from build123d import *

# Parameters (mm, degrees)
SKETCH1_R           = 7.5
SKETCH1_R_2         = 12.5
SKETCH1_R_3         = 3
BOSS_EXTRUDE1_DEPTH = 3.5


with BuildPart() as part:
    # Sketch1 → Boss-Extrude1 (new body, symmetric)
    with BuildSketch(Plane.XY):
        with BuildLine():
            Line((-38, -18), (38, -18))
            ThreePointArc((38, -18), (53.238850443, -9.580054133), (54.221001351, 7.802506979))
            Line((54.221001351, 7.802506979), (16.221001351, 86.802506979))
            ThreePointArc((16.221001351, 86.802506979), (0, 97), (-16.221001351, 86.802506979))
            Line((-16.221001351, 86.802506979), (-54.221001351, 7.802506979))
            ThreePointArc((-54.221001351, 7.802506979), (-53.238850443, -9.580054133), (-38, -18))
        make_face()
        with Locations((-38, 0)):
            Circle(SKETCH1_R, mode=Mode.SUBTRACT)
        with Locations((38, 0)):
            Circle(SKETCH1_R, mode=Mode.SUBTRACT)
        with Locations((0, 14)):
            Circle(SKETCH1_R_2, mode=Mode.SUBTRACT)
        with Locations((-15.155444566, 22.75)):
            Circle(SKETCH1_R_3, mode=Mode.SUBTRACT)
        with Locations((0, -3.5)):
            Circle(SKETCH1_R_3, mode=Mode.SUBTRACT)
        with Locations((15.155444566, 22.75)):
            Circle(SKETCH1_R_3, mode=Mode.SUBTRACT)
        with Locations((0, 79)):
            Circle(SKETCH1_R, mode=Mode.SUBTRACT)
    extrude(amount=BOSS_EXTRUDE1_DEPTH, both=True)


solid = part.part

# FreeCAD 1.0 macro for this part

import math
import FreeCAD as App
import Part
import Sketcher
Q = App.Units.Quantity

doc = App.newDocument("Part")
body = doc.addObject("PartDesign::Body", "Body")

# Sketch on XY plane
sketch1 = body.newObject("Sketcher::SketchObject", "Sketch")
sketch1.AttachmentSupport = (doc.getObject("XY_Plane"), [""])
sketch1.MapMode = "FlatFace"
sketch1.addGeometry(Part.LineSegment(App.Vector(-38, -18, 0), App.Vector(38, -18, 0)), False)
sketch1.addGeometry(Part.ArcOfCircle(Part.Circle(App.Vector(38, 0, 0), App.Vector(0, 0, 1), 18), math.radians(-90), math.radians(26)), False)
sketch1.addGeometry(Part.LineSegment(App.Vector(54.2, 7.8, 0), App.Vector(16.2, 86.8, 0)), False)
sketch1.addGeometry(Part.ArcOfCircle(Part.Circle(App.Vector(0, 79, 0), App.Vector(0, 0, 1), 18), math.radians(26), math.radians(154)), False)
sketch1.addGeometry(Part.LineSegment(App.Vector(-16.2, 86.8, 0), App.Vector(-54.2, 7.8, 0)), False)
sketch1.addGeometry(Part.ArcOfCircle(Part.Circle(App.Vector(-38, 0, 0), App.Vector(0, 0, 1), 18), math.radians(154), math.radians(270)), False)
sketch1.addGeometry(Part.Circle(App.Vector(-38, 0, 0), App.Vector(0, 0, 1), 7.5), False)
sketch1.addGeometry(Part.Circle(App.Vector(-15.2, 22.8, 0), App.Vector(0, 0, 1), 3), False)
sketch1.addGeometry(Part.Circle(App.Vector(0, -3.5, 0), App.Vector(0, 0, 1), 3), False)
sketch1.addGeometry(Part.Circle(App.Vector(0, 14, 0), App.Vector(0, 0, 1), 12.5), False)
sketch1.addGeometry(Part.Circle(App.Vector(38, 0, 0), App.Vector(0, 0, 1), 7.5), False)
sketch1.addGeometry(Part.Circle(App.Vector(15.2, 22.8, 0), App.Vector(0, 0, 1), 3), False)
sketch1.addGeometry(Part.Circle(App.Vector(0, 79, 0), App.Vector(0, 0, 1), 7.5), False)
sketch1.addConstraint(Sketcher.Constraint("Tangent", 0, 2, 1, 1))
sketch1.addConstraint(Sketcher.Constraint("Tangent", 1, 2, 2, 1))
sketch1.addConstraint(Sketcher.Constraint("Tangent", 2, 2, 3, 1))
sketch1.addConstraint(Sketcher.Constraint("Tangent", 3, 2, 4, 1))
sketch1.addConstraint(Sketcher.Constraint("Tangent", 4, 2, 5, 1))
sketch1.addConstraint(Sketcher.Constraint("Tangent", 5, 2, 0, 1))
sketch1.addConstraint(Sketcher.Constraint("Horizontal", 0))
sketch1.addConstraint(Sketcher.Constraint("Coincident", 6, 3, 5, 3))
sketch1.addConstraint(Sketcher.Constraint("Coincident", 10, 3, 1, 3))
sketch1.addConstraint(Sketcher.Constraint("Coincident", 12, 3, 3, 3))
sketch1.addConstraint(Sketcher.Constraint("Equal", 1, 3))
sketch1.addConstraint(Sketcher.Constraint("Equal", 3, 5))
sketch1.addConstraint(Sketcher.Constraint("Equal", 7, 8))
sketch1.addConstraint(Sketcher.Constraint("Equal", 6, 10))
sketch1.addConstraint(Sketcher.Constraint("Equal", 8, 11))
sketch1.addConstraint(Sketcher.Constraint("Equal", 10, 12))
sketch1.addConstraint(Sketcher.Constraint("Symmetric", 1, 3, 5, 3, -1, 1))
sketch1.addConstraint(Sketcher.Constraint("Symmetric", 7, 3, 11, 3, -2))
sketch1.addConstraint(Sketcher.Constraint("PointOnObject", 3, 3, -2))
sketch1.addConstraint(Sketcher.Constraint("PointOnObject", 8, 3, -2))
sketch1.addConstraint(Sketcher.Constraint("PointOnObject", 9, 3, -2))
sketch1.addConstraint(Sketcher.Constraint("Diameter", 6, Q("15 mm")))
sketch1.addConstraint(Sketcher.Constraint("Diameter", 7, Q("6 mm")))
sketch1.addConstraint(Sketcher.Constraint("Diameter", 9, Q("25 mm")))
sketch1.addConstraint(Sketcher.Constraint("Radius", 1, Q("18 mm")))
sketch1.addConstraint(Sketcher.Constraint("DistanceX", 0, 1, 0, 2, Q("76 mm")))
sketch1.addConstraint(Sketcher.Constraint("DistanceY", -1, 1, 3, 3, Q("79 mm")))
sketch1.addConstraint(Sketcher.Constraint("DistanceY", -1, 1, 9, 3, Q("14 mm")))
sketch1.addConstraint(Sketcher.Constraint("DistanceY", 8, 3, -1, 1, Q("3.5 mm")))
sketch1.addConstraint(Sketcher.Constraint("DistanceY", -1, 1, 7, 3, Q("22.75 mm")))
sketch1.addConstraint(Sketcher.Constraint("DistanceX", 7, 3, 11, 3, Q("30.310889 mm")))
pad1 = body.newObject("PartDesign::Pad", "Pad")
pad1.Profile = sketch1
pad1.Length = 7
pad1.Midplane = True

doc.recompute()
